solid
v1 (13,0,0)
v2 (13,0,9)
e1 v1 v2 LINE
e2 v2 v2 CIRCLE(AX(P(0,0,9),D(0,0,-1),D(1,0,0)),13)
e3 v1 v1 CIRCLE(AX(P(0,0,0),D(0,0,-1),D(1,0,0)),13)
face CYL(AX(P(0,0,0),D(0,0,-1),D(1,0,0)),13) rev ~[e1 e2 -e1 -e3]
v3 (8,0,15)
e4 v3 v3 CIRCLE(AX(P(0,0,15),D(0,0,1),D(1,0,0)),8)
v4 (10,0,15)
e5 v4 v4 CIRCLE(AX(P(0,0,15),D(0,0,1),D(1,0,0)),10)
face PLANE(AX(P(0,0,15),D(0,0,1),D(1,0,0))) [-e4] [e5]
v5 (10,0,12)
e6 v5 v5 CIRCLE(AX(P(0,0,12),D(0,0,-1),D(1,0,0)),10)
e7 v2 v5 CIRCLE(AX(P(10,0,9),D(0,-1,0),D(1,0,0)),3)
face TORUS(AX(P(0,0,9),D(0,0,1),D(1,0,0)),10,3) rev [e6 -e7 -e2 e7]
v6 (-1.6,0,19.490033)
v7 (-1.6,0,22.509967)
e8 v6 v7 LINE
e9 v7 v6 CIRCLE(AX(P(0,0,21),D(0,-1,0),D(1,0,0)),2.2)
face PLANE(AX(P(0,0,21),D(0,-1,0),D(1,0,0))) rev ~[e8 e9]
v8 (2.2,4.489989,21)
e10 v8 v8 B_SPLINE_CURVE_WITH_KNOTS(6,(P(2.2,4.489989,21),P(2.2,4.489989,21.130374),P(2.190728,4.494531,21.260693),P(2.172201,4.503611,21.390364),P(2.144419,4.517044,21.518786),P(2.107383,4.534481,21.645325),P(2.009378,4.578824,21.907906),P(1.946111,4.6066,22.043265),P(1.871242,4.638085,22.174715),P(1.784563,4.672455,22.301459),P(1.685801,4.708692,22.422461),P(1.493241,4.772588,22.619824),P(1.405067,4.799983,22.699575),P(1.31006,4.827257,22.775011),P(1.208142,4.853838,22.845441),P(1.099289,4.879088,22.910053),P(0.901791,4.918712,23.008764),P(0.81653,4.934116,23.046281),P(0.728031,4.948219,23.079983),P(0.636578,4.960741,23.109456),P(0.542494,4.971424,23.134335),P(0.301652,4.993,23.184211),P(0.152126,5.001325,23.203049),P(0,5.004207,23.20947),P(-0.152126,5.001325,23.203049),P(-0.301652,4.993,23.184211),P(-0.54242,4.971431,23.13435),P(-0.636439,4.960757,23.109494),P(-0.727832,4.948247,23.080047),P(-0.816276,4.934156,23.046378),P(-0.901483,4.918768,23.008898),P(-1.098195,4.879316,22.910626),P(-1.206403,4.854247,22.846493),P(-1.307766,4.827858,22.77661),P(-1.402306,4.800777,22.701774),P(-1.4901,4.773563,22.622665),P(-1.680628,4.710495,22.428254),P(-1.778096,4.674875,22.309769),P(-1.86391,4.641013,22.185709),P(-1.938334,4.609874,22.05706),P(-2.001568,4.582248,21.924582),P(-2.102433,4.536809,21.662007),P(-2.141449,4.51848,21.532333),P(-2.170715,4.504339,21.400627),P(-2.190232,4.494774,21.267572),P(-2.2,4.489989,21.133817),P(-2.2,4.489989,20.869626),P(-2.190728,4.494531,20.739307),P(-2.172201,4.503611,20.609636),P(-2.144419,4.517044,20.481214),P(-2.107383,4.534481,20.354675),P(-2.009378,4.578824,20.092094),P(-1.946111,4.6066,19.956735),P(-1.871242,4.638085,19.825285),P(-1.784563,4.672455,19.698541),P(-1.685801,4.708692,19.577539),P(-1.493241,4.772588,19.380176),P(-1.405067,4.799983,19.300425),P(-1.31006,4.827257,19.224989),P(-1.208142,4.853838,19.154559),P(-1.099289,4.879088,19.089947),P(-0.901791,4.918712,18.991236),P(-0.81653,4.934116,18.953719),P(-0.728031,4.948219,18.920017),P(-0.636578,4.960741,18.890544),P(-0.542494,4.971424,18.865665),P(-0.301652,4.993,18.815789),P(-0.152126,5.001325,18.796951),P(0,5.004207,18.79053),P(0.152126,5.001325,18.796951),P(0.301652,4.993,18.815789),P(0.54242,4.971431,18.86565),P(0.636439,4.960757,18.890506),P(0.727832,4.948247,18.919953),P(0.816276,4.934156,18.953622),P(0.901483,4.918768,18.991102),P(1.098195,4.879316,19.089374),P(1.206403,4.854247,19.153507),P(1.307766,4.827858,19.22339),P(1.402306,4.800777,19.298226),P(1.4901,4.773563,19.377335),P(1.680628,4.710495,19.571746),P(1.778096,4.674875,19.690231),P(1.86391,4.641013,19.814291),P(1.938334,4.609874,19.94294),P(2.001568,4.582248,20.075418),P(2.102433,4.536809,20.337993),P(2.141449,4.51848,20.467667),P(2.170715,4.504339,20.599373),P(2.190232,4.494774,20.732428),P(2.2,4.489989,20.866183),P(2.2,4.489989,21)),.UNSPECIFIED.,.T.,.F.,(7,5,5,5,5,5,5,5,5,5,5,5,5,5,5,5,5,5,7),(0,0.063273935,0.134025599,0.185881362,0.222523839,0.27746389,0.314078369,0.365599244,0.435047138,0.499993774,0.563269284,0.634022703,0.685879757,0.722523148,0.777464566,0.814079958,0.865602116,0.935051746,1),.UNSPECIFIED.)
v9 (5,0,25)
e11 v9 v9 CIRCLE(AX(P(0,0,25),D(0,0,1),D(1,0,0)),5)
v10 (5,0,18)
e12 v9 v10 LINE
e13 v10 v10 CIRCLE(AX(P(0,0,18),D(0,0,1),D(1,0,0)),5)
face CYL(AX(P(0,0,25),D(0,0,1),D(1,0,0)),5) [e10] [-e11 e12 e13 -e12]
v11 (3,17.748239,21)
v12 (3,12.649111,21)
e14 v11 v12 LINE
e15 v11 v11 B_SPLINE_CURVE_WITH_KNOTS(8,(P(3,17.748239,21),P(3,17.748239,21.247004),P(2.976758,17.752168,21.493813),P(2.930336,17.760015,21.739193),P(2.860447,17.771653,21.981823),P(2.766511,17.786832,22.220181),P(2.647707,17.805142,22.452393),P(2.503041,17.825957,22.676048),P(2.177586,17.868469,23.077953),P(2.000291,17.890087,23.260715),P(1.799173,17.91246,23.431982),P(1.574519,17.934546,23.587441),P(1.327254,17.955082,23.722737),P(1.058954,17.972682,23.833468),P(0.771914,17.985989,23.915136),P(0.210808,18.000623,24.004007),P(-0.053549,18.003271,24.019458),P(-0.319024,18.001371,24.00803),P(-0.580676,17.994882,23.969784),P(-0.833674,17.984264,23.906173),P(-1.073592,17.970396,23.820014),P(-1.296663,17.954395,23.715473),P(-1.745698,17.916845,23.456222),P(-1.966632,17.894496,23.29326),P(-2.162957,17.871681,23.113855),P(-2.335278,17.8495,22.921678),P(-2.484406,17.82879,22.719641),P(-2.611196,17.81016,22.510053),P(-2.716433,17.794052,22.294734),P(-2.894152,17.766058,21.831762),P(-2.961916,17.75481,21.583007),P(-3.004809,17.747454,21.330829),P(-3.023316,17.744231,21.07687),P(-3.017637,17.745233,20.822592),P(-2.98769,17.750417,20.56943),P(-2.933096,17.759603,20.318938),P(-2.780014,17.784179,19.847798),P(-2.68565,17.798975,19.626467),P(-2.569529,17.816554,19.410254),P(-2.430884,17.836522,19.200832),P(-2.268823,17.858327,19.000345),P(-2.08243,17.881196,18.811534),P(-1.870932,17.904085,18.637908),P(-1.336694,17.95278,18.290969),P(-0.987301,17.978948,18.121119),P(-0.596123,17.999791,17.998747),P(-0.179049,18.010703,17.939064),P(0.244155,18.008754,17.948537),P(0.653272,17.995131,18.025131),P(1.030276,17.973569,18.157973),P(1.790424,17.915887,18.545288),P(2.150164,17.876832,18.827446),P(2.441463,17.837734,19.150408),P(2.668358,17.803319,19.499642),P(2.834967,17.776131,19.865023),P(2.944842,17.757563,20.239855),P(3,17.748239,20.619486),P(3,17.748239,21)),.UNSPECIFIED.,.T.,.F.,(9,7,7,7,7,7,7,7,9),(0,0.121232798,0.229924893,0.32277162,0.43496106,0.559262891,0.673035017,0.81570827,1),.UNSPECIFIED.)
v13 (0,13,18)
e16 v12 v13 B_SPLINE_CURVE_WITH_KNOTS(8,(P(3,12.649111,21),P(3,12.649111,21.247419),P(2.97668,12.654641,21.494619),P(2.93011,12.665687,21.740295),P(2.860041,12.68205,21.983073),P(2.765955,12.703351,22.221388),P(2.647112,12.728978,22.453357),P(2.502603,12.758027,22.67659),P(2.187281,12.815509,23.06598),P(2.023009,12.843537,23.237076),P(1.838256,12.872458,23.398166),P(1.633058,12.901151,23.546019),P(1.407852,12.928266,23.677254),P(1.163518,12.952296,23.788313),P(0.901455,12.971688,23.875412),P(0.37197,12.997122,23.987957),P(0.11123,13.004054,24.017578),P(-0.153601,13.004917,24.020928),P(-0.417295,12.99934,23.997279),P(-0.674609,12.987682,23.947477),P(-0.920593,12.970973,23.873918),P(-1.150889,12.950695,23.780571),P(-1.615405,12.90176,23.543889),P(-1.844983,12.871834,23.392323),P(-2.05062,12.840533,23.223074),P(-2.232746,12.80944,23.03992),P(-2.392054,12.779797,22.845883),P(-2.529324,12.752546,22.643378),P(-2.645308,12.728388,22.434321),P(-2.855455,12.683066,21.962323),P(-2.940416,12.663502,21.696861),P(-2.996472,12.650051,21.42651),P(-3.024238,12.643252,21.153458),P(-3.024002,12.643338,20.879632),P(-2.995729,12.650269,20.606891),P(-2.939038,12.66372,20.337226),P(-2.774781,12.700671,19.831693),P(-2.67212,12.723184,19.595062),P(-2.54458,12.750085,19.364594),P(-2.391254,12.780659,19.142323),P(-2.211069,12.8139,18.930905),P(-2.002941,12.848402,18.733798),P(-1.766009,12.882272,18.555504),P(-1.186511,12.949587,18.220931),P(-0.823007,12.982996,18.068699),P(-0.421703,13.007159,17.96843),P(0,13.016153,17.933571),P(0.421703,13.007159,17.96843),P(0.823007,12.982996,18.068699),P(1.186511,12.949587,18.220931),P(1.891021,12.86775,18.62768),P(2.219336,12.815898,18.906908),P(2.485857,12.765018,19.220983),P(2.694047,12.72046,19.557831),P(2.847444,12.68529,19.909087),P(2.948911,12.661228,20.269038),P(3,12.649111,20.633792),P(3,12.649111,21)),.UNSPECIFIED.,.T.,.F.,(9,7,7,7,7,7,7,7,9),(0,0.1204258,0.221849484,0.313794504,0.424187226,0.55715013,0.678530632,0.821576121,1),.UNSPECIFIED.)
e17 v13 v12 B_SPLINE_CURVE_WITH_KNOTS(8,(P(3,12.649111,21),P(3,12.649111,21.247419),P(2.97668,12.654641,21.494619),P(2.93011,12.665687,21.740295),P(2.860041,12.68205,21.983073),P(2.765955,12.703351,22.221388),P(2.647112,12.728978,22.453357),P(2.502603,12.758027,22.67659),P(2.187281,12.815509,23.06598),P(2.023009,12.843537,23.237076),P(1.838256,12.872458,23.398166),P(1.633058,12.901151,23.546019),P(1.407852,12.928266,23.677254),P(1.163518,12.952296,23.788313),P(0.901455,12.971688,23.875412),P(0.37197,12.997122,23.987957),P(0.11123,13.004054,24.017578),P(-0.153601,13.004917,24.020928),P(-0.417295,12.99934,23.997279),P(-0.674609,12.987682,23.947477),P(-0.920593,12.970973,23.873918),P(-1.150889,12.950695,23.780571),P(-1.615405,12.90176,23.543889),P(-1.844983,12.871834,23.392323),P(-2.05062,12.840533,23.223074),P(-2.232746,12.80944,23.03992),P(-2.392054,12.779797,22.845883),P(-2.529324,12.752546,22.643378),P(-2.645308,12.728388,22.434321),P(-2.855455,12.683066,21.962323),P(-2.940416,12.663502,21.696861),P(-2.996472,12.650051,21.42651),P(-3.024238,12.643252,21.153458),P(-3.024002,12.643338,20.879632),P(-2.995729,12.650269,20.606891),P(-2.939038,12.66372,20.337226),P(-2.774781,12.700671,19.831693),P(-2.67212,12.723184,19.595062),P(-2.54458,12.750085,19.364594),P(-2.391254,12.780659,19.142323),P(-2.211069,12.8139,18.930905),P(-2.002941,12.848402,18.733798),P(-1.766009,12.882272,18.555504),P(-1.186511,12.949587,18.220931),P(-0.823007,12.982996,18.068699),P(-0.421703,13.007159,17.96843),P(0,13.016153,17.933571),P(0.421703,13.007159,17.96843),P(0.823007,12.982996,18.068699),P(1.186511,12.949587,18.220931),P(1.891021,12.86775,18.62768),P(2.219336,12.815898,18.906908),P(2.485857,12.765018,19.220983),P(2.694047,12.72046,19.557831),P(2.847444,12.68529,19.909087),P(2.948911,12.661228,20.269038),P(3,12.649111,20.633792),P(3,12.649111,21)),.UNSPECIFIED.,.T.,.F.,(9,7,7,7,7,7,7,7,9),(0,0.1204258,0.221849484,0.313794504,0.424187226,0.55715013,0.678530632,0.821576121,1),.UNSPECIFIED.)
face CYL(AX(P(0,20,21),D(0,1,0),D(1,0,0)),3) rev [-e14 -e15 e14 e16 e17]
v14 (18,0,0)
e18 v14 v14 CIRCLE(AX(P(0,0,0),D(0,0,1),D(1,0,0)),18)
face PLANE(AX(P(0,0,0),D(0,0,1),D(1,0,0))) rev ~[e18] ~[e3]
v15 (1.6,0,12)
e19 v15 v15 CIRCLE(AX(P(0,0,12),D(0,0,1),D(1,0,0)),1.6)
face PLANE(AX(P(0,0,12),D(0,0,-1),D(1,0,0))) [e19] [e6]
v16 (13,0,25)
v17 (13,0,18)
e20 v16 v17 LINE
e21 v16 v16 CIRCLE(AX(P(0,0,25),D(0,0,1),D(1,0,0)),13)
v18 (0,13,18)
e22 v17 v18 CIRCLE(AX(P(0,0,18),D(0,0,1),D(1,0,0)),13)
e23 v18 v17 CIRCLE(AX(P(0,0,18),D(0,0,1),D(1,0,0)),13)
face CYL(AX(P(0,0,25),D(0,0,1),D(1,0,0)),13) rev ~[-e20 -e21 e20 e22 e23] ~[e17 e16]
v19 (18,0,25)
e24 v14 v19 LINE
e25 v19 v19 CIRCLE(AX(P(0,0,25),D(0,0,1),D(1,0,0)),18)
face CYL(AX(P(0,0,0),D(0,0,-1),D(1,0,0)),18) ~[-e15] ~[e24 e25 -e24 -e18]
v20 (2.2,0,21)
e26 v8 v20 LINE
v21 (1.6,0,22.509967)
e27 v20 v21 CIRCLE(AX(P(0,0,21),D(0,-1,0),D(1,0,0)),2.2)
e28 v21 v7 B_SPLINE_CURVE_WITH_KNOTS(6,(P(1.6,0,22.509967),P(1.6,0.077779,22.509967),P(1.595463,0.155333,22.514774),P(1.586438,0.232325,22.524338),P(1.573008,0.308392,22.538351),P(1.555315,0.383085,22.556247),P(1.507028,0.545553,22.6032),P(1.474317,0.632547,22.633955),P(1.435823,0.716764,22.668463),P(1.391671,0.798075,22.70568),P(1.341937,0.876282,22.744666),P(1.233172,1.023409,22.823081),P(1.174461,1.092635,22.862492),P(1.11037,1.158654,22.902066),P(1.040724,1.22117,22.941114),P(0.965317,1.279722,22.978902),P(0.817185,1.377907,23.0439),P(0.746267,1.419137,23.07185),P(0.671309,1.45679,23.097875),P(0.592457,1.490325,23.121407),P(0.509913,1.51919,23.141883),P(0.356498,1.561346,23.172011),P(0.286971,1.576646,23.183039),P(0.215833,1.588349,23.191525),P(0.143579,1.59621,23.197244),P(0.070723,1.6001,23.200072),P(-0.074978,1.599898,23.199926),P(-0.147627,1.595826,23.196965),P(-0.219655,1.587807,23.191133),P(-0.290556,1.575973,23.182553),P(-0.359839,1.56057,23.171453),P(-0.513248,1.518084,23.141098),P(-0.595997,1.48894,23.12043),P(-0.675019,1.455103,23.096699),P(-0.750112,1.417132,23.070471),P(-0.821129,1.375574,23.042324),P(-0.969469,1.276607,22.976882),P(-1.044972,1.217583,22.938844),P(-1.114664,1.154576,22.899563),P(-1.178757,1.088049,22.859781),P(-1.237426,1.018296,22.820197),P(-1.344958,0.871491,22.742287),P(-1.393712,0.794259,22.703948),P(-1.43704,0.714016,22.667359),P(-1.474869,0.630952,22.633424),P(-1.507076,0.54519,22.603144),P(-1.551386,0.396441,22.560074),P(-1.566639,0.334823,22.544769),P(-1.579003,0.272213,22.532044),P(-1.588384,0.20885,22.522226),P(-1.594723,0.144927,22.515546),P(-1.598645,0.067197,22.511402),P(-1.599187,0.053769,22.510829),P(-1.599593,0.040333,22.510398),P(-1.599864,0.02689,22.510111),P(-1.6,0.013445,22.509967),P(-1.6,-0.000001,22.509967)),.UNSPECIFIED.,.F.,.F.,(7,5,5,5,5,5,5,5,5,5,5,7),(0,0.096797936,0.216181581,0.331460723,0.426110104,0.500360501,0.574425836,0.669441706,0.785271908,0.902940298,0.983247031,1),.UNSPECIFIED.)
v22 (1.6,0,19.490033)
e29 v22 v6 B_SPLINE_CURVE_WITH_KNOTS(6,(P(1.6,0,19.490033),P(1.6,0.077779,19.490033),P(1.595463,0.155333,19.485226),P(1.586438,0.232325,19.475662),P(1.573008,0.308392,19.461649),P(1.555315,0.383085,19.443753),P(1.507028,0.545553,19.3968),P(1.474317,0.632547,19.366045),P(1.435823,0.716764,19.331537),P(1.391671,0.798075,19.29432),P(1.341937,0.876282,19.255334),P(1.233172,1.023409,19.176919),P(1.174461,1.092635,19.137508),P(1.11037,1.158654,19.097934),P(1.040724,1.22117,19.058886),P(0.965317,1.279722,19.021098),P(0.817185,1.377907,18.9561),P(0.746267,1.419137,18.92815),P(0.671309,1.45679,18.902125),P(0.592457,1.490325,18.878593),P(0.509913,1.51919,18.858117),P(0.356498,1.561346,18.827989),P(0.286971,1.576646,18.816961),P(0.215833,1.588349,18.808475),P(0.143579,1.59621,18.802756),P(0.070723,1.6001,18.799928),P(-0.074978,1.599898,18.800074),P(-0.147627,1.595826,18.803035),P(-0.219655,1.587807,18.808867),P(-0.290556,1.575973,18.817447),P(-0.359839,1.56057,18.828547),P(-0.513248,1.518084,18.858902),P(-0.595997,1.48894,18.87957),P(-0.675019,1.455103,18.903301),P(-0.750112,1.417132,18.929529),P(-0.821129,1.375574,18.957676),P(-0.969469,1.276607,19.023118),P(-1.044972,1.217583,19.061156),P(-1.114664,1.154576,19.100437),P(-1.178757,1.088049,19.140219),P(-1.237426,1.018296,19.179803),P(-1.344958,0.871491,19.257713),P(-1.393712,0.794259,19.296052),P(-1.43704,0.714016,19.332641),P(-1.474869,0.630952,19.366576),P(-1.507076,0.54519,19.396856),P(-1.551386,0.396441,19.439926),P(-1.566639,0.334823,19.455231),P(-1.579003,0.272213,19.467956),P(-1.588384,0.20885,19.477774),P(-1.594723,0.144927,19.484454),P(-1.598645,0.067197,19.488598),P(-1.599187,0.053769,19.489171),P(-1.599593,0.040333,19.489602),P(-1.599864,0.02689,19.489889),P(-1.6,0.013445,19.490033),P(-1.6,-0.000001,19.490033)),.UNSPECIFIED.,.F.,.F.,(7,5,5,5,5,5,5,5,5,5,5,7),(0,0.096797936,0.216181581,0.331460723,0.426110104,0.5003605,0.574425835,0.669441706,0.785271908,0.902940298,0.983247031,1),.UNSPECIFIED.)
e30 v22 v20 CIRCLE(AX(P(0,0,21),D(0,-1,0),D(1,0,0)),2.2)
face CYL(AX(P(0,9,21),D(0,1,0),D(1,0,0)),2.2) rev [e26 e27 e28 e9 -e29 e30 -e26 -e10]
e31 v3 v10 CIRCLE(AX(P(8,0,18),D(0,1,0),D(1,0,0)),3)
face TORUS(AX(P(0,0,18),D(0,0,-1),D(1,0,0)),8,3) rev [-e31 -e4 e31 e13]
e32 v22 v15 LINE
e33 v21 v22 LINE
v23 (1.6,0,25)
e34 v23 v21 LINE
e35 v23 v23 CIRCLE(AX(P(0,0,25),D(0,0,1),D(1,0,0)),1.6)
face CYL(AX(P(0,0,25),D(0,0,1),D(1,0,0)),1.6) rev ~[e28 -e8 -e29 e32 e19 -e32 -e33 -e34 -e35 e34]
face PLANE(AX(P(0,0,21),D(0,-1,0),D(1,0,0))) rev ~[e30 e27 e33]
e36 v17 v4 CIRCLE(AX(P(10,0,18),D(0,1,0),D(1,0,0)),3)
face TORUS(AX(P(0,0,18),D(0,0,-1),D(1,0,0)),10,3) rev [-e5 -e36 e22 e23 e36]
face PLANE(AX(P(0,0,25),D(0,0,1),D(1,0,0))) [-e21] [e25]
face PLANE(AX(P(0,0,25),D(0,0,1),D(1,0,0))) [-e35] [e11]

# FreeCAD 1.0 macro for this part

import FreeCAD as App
import Part
import Sketcher
from FreeCAD import Vector
Q = App.Units.Quantity


def edges_at(feature, points):
    """Names of the edges that pass closest to the given points."""
    edges = feature.Shape.Edges
    near = lambda p: min(range(len(edges)), key=lambda i: edges[i].distToShape(Part.Vertex(*p))[0])
    return sorted({f"Edge{near(p) + 1}" for p in points})

doc = App.newDocument("Part")
body = doc.addObject("PartDesign::Body", "Body")

sketch1 = doc.addObject("Sketcher::SketchObject", "Sketch")
body.addObject(sketch1)
sketch1.AttachmentSupport = (doc.XZ_Plane, [""])
sketch1.MapMode = "FlatFace"
sketch1.AttachmentOffset = App.Placement(Vector(0, 0, -20), App.Rotation())
sketch1.addGeometry(Part.Circle(Vector(0, 21, 0), Vector(0, 0, 1), 3), False)
sketch1.addConstraint([
    Sketcher.Constraint("PointOnObject", 0, 3, -2),
    Sketcher.Constraint("Diameter", 0, Q("6 mm")),
    Sketcher.Constraint("DistanceY", -1, 1, 0, 3, Q("21 mm")),
])
pad1 = doc.addObject("PartDesign::Pad", "Pad")
body.addObject(pad1)
pad1.Profile = sketch1
pad1.Length = 9
body2 = doc.addObject("PartDesign::Body", "Body001")

sketch2 = doc.addObject("Sketcher::SketchObject", "Sketch001")
body2.addObject(sketch2)
sketch2.AttachmentSupport = (doc.getObject("XZ_Plane001"), [""])
sketch2.MapMode = "FlatFace"
sketch2.AttachmentOffset = App.Placement(Vector(0, 0, -9), App.Rotation())
sketch2.addGeometry(Part.Circle(Vector(0, 21, 0), Vector(0, 0, 1), 2.2), False)
sketch2.addConstraint([
    Sketcher.Constraint("PointOnObject", 0, 3, -2),
    Sketcher.Constraint("Diameter", 0, Q("4.4 mm")),
    Sketcher.Constraint("DistanceY", -1, 1, 0, 3, Q("21 mm")),
])
pad2 = doc.addObject("PartDesign::Pad", "Pad001")
body2.addObject(pad2)
pad2.Profile = sketch2
pad2.Length = 9
body3 = doc.addObject("PartDesign::Body", "Body002")

sketch3 = doc.addObject("Sketcher::SketchObject", "Sketch002")
body3.addObject(sketch3)
sketch3.AttachmentSupport = (doc.getObject("XY_Plane002"), [""])
sketch3.MapMode = "FlatFace"
sketch3.addGeometry(Part.Circle(Vector(0, 0, 0), Vector(0, 0, 1), 18), False)
sketch3.addConstraint([
    Sketcher.Constraint("Coincident", 0, 3, -1, 1),
    Sketcher.Constraint("Diameter", 0, Q("36 mm")),
])
pad3 = doc.addObject("PartDesign::Pad", "Pad002")
body3.addObject(pad3)
pad3.Profile = sketch3
pad3.Length = 25

sketch4 = doc.addObject("Sketcher::SketchObject", "Sketch003")
body3.addObject(sketch4)
sketch4.AttachmentSupport = (doc.getObject("XY_Plane002"), [""])
sketch4.MapMode = "FlatFace"
sketch4.AttachmentOffset = App.Placement(Vector(0, 0, 25), App.Rotation())
sketch4.addGeometry([
    Part.Circle(Vector(0, 0, 0), Vector(0, 0, 1), 13),
    Part.Circle(Vector(0, 0, 0), Vector(0, 0, 1), 5),
], False)
sketch4.addConstraint([
    Sketcher.Constraint("Coincident", 0, 3, -1, 1),
    Sketcher.Constraint("Coincident", 1, 3, -1, 1),
    Sketcher.Constraint("Diameter", 0, Q("26 mm")),
    Sketcher.Constraint("Diameter", 1, Q("10 mm")),
])
pocket1 = doc.addObject("PartDesign::Pocket", "Pocket")
body3.addObject(pocket1)
pocket1.Profile = sketch4
pocket1.Length = 10

sketch5 = doc.addObject("Sketcher::SketchObject", "Sketch004")
body3.addObject(sketch5)
sketch5.AttachmentSupport = (doc.getObject("XY_Plane002"), [""])
sketch5.MapMode = "FlatFace"
sketch5.addGeometry(Part.Circle(Vector(0, 0, 0), Vector(0, 0, 1), 13), False)
sketch5.addConstraint([
    Sketcher.Constraint("Coincident", 0, 3, -1, 1),
    Sketcher.Constraint("Diameter", 0, Q("26 mm")),
])
pocket2 = doc.addObject("PartDesign::Pocket", "Pocket001")
body3.addObject(pocket2)
pocket2.Profile = sketch5
pocket2.Length = 12
pocket2.Reversed = True

sketch6 = doc.addObject("Sketcher::SketchObject", "Sketch005")
body3.addObject(sketch6)
sketch6.AttachmentSupport = (doc.getObject("XY_Plane002"), [""])
sketch6.MapMode = "FlatFace"
sketch6.AttachmentOffset = App.Placement(Vector(0, 0, 25), App.Rotation())
sketch6.addGeometry(Part.Circle(Vector(0, 0, 0), Vector(0, 0, 1), 1.6), False)
sketch6.addConstraint([
    Sketcher.Constraint("Coincident", 0, 3, -1, 1),
    Sketcher.Constraint("Diameter", 0, Q("3.2 mm")),
])
pocket3 = doc.addObject("PartDesign::Pocket", "Pocket002")
body3.addObject(pocket3)
pocket3.Profile = sketch6
pocket3.Length = 13
doc.recompute()

fillet = doc.addObject("PartDesign::Fillet", "Fillet")
body3.addObject(fillet)
fillet.Base = (pocket3, edges_at(pocket3, [(-5, 0, 15), (-13, 0, 15), (-13, 0, 12)]))
fillet.Radius = 3
doc.recompute()

boolean = doc.addObject("PartDesign::Boolean", "Boolean")
body3.addObject(boolean)
boolean.Type = "Cut"
boolean.addObjects([body2])
doc.recompute()

boolean2 = doc.addObject("PartDesign::Boolean", "Boolean001")
body3.addObject(boolean2)
boolean2.Type = "Cut"
boolean2.addObjects([body])

doc.recompute()
